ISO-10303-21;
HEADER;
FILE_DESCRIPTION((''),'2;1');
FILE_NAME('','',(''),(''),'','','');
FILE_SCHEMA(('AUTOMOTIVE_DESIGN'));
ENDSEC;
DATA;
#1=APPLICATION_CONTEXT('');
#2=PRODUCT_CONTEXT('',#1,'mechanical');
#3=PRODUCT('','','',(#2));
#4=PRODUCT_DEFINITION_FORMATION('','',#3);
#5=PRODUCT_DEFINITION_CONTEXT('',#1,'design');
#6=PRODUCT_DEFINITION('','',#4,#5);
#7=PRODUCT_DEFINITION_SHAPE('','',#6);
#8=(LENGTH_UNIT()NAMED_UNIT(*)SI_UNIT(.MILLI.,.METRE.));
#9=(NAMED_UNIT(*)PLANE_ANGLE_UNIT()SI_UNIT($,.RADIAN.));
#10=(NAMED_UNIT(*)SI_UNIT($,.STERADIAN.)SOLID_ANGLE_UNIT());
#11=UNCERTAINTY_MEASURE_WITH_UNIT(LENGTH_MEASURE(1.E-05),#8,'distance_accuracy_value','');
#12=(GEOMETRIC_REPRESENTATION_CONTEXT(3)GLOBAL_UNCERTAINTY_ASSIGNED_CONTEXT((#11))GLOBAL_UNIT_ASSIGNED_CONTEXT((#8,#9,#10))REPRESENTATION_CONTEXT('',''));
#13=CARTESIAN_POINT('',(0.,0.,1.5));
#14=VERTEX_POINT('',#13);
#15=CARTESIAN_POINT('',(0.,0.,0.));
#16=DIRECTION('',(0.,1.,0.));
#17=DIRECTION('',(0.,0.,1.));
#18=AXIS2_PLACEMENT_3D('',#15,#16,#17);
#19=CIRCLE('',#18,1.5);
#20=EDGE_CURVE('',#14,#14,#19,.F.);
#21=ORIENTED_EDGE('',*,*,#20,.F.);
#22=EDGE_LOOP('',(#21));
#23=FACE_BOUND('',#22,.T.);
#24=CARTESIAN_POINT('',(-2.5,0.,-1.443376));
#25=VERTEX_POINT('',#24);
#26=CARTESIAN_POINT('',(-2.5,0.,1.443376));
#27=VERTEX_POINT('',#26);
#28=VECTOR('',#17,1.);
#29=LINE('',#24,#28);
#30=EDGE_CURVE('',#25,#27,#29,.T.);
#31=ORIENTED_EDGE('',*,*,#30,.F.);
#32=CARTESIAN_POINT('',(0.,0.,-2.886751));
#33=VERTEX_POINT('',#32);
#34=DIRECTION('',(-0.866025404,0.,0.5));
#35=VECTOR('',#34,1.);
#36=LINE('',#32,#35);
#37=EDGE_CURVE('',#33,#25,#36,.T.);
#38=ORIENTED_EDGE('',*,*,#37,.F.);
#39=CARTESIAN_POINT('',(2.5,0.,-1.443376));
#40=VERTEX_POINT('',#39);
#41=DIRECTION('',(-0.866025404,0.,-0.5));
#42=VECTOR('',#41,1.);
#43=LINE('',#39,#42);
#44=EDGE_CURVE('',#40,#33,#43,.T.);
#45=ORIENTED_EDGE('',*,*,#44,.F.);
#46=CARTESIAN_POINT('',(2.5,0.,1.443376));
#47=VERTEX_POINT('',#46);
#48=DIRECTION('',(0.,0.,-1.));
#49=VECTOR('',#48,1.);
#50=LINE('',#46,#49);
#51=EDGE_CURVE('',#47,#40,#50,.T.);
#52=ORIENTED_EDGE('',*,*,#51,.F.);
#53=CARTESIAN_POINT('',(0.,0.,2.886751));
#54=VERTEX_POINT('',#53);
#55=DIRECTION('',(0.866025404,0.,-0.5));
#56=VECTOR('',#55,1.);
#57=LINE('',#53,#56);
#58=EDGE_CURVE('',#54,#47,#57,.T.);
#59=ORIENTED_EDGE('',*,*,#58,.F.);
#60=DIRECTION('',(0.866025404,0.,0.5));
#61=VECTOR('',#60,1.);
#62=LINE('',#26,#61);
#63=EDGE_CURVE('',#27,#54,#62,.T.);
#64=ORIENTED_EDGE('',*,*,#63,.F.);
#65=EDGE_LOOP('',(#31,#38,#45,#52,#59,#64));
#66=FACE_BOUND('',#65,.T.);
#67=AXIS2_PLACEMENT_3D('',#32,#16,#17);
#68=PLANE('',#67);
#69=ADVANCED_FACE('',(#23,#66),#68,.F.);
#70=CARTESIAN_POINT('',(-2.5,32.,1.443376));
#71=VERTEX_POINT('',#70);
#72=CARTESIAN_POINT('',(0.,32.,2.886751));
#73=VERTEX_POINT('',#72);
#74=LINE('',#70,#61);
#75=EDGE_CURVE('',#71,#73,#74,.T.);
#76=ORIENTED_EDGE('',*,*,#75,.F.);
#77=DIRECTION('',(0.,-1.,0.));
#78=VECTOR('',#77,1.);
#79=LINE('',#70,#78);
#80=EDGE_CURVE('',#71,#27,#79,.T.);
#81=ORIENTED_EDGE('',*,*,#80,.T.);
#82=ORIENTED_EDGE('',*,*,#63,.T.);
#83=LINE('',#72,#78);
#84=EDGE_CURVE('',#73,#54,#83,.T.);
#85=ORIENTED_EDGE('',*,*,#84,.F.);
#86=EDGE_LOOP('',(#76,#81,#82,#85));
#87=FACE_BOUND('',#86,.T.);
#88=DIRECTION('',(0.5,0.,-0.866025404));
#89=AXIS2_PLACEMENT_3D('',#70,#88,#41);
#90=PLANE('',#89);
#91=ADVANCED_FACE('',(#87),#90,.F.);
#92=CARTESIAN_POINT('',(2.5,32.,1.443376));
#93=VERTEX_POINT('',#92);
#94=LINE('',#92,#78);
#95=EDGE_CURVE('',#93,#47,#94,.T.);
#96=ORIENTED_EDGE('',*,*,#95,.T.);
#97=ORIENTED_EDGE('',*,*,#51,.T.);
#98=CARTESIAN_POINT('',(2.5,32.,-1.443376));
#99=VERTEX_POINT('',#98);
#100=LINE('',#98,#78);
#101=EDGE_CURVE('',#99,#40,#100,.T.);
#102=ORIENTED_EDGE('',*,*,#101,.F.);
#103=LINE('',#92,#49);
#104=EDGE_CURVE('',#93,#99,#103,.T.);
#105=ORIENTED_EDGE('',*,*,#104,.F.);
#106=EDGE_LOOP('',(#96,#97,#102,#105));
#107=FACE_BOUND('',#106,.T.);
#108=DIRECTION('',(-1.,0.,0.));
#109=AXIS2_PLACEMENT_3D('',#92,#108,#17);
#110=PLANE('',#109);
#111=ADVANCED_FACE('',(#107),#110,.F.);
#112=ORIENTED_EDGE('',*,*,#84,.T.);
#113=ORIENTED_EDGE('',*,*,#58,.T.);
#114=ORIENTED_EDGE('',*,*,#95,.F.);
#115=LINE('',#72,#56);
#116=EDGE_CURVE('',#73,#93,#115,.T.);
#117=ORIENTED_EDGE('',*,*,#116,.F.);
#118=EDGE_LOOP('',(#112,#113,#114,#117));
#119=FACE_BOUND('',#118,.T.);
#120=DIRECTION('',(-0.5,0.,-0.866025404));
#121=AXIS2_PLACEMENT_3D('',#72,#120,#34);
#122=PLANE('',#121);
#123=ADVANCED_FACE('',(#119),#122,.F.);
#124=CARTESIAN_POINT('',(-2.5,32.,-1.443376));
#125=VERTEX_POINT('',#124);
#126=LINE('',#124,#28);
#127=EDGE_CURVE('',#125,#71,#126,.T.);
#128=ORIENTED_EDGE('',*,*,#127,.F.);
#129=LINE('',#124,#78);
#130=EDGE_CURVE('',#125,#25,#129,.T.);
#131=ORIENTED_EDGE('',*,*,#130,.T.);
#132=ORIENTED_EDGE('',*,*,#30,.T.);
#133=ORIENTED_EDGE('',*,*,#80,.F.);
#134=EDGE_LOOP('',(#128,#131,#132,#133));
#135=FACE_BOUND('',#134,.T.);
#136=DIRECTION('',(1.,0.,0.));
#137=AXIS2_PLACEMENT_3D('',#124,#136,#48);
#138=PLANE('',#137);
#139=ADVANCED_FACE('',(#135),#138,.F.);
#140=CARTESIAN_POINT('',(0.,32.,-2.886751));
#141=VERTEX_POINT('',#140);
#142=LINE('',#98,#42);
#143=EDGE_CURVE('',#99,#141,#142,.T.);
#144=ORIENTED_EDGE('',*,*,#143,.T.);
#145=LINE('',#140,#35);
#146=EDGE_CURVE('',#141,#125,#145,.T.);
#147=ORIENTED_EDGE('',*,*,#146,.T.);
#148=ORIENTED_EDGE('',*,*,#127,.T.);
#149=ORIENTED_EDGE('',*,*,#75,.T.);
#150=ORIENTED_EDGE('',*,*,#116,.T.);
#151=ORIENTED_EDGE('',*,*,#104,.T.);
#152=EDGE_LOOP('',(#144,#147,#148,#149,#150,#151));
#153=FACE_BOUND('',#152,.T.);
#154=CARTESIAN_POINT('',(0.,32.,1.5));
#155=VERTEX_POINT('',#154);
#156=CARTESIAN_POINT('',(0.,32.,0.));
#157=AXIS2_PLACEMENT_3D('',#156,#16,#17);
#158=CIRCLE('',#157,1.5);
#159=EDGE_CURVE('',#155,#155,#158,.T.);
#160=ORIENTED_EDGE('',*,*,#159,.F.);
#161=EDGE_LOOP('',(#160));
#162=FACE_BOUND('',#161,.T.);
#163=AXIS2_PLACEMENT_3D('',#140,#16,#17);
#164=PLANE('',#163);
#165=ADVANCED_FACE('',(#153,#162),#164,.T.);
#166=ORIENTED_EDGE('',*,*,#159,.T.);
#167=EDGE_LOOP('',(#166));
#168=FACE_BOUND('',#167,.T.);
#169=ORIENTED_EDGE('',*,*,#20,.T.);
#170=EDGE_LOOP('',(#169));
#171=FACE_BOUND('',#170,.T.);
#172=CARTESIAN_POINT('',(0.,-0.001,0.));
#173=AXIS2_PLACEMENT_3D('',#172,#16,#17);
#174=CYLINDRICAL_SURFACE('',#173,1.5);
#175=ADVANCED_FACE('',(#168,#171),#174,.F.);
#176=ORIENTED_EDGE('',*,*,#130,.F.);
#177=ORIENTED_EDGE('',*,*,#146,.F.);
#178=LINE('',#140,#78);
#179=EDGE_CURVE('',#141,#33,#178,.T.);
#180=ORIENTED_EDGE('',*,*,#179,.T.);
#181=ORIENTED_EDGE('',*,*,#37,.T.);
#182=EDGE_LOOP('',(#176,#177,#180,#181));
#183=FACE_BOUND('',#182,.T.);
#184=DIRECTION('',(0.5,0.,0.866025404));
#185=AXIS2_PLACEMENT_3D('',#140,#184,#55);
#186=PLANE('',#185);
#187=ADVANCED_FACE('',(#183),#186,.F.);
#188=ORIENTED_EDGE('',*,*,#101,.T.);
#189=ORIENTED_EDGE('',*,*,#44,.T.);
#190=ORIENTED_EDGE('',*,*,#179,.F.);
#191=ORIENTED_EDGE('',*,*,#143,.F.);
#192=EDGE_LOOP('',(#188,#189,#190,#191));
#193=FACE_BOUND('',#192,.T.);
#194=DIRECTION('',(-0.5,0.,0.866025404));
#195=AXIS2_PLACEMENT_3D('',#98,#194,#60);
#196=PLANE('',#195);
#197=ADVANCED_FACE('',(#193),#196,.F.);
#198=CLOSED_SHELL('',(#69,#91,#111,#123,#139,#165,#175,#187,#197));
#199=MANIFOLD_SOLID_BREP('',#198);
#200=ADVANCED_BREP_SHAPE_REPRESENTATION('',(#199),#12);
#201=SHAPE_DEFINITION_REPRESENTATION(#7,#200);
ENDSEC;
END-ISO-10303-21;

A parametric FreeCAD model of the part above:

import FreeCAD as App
import Part
import Sketcher
from FreeCAD import Vector
Q = App.Units.Quantity

doc = App.newDocument("Part")
body = doc.addObject("PartDesign::Body", "Body")

sketch1 = body.newObject("Sketcher::SketchObject", "Sketch")
sketch1.AttachmentSupport = (doc.getObject("XZ_Plane"), [""])
sketch1.MapMode = "FlatFace"
sketch1.addGeometry(Part.LineSegment(Vector(0, -2.886751, 0), Vector(-2.5, -1.443376, 0)), False)
sketch1.addGeometry(Part.LineSegment(Vector(-2.5, -1.443376, 0), Vector(-2.5, 1.443376, 0)), False)
sketch1.addGeometry(Part.LineSegment(Vector(-2.5, 1.443376, 0), Vector(0, 2.886751, 0)), False)
sketch1.addGeometry(Part.LineSegment(Vector(0, 2.886751, 0), Vector(2.5, 1.443376, 0)), False)
sketch1.addGeometry(Part.LineSegment(Vector(2.5, 1.443376, 0), Vector(2.5, -1.443376, 0)), False)
sketch1.addGeometry(Part.LineSegment(Vector(2.5, -1.443376, 0), Vector(0, -2.886751, 0)), False)
sketch1.addConstraint(Sketcher.Constraint("Coincident", 0, 2, 1, 1))
sketch1.addConstraint(Sketcher.Constraint("Coincident", 1, 2, 2, 1))
sketch1.addConstraint(Sketcher.Constraint("Coincident", 2, 2, 3, 1))
sketch1.addConstraint(Sketcher.Constraint("Coincident", 3, 2, 4, 1))
sketch1.addConstraint(Sketcher.Constraint("Coincident", 4, 2, 5, 1))
sketch1.addConstraint(Sketcher.Constraint("Coincident", 5, 2, 0, 1))
sketch1.addConstraint(Sketcher.Constraint("Vertical", 1))
sketch1.addConstraint(Sketcher.Constraint("Vertical", 4))
sketch1.addConstraint(Sketcher.Constraint("Symmetric", 0, 2, 3, 2, -1, 1))
sketch1.addConstraint(Sketcher.Constraint("Symmetric", 2, 2, 5, 2, -1, 1))
sketch1.addConstraint(Sketcher.Constraint("PointOnObject", 2, 2, -2))
sketch1.addConstraint(Sketcher.Constraint("Parallel", 2, 5))
sketch1.addConstraint(Sketcher.Constraint("Horizontal", 1, 2, 3, 2))
sketch1.addConstraint(Sketcher.Constraint("Angle", 0, Q("150 deg")))
sketch1.addConstraint(Sketcher.Constraint("DistanceX", 1, 2, 3, 2, 5.0))
sketch1.addConstraint(Sketcher.Constraint("DistanceY", 1, 1, 1, 2, 2.886751))
pad1 = body.newObject("PartDesign::Pad", "Pad")
pad1.Profile = sketch1
pad1.Length = 32
pad1.Reversed = True

sketch2 = body.newObject("Sketcher::SketchObject", "Sketch001")
sketch2.AttachmentSupport = (doc.getObject("XZ_Plane"), [""])
sketch2.MapMode = "FlatFace"
sketch2.AttachmentOffset = App.Placement(Vector(0, 0, -32), App.Rotation())
sketch2.addGeometry(Part.Circle(Vector(0, 0, 0), Vector(0, 0, 1), 1.5), False)
sketch2.addConstraint(Sketcher.Constraint("Coincident", 0, 3, -1, 1))
sketch2.addConstraint(Sketcher.Constraint("Diameter", 0, 3.0))
pocket1 = body.newObject("PartDesign::Pocket", "Pocket")
pocket1.Profile = sketch2
pocket1.Type = "UpToFirst"
pocket1.Reversed = True

doc.recompute()
